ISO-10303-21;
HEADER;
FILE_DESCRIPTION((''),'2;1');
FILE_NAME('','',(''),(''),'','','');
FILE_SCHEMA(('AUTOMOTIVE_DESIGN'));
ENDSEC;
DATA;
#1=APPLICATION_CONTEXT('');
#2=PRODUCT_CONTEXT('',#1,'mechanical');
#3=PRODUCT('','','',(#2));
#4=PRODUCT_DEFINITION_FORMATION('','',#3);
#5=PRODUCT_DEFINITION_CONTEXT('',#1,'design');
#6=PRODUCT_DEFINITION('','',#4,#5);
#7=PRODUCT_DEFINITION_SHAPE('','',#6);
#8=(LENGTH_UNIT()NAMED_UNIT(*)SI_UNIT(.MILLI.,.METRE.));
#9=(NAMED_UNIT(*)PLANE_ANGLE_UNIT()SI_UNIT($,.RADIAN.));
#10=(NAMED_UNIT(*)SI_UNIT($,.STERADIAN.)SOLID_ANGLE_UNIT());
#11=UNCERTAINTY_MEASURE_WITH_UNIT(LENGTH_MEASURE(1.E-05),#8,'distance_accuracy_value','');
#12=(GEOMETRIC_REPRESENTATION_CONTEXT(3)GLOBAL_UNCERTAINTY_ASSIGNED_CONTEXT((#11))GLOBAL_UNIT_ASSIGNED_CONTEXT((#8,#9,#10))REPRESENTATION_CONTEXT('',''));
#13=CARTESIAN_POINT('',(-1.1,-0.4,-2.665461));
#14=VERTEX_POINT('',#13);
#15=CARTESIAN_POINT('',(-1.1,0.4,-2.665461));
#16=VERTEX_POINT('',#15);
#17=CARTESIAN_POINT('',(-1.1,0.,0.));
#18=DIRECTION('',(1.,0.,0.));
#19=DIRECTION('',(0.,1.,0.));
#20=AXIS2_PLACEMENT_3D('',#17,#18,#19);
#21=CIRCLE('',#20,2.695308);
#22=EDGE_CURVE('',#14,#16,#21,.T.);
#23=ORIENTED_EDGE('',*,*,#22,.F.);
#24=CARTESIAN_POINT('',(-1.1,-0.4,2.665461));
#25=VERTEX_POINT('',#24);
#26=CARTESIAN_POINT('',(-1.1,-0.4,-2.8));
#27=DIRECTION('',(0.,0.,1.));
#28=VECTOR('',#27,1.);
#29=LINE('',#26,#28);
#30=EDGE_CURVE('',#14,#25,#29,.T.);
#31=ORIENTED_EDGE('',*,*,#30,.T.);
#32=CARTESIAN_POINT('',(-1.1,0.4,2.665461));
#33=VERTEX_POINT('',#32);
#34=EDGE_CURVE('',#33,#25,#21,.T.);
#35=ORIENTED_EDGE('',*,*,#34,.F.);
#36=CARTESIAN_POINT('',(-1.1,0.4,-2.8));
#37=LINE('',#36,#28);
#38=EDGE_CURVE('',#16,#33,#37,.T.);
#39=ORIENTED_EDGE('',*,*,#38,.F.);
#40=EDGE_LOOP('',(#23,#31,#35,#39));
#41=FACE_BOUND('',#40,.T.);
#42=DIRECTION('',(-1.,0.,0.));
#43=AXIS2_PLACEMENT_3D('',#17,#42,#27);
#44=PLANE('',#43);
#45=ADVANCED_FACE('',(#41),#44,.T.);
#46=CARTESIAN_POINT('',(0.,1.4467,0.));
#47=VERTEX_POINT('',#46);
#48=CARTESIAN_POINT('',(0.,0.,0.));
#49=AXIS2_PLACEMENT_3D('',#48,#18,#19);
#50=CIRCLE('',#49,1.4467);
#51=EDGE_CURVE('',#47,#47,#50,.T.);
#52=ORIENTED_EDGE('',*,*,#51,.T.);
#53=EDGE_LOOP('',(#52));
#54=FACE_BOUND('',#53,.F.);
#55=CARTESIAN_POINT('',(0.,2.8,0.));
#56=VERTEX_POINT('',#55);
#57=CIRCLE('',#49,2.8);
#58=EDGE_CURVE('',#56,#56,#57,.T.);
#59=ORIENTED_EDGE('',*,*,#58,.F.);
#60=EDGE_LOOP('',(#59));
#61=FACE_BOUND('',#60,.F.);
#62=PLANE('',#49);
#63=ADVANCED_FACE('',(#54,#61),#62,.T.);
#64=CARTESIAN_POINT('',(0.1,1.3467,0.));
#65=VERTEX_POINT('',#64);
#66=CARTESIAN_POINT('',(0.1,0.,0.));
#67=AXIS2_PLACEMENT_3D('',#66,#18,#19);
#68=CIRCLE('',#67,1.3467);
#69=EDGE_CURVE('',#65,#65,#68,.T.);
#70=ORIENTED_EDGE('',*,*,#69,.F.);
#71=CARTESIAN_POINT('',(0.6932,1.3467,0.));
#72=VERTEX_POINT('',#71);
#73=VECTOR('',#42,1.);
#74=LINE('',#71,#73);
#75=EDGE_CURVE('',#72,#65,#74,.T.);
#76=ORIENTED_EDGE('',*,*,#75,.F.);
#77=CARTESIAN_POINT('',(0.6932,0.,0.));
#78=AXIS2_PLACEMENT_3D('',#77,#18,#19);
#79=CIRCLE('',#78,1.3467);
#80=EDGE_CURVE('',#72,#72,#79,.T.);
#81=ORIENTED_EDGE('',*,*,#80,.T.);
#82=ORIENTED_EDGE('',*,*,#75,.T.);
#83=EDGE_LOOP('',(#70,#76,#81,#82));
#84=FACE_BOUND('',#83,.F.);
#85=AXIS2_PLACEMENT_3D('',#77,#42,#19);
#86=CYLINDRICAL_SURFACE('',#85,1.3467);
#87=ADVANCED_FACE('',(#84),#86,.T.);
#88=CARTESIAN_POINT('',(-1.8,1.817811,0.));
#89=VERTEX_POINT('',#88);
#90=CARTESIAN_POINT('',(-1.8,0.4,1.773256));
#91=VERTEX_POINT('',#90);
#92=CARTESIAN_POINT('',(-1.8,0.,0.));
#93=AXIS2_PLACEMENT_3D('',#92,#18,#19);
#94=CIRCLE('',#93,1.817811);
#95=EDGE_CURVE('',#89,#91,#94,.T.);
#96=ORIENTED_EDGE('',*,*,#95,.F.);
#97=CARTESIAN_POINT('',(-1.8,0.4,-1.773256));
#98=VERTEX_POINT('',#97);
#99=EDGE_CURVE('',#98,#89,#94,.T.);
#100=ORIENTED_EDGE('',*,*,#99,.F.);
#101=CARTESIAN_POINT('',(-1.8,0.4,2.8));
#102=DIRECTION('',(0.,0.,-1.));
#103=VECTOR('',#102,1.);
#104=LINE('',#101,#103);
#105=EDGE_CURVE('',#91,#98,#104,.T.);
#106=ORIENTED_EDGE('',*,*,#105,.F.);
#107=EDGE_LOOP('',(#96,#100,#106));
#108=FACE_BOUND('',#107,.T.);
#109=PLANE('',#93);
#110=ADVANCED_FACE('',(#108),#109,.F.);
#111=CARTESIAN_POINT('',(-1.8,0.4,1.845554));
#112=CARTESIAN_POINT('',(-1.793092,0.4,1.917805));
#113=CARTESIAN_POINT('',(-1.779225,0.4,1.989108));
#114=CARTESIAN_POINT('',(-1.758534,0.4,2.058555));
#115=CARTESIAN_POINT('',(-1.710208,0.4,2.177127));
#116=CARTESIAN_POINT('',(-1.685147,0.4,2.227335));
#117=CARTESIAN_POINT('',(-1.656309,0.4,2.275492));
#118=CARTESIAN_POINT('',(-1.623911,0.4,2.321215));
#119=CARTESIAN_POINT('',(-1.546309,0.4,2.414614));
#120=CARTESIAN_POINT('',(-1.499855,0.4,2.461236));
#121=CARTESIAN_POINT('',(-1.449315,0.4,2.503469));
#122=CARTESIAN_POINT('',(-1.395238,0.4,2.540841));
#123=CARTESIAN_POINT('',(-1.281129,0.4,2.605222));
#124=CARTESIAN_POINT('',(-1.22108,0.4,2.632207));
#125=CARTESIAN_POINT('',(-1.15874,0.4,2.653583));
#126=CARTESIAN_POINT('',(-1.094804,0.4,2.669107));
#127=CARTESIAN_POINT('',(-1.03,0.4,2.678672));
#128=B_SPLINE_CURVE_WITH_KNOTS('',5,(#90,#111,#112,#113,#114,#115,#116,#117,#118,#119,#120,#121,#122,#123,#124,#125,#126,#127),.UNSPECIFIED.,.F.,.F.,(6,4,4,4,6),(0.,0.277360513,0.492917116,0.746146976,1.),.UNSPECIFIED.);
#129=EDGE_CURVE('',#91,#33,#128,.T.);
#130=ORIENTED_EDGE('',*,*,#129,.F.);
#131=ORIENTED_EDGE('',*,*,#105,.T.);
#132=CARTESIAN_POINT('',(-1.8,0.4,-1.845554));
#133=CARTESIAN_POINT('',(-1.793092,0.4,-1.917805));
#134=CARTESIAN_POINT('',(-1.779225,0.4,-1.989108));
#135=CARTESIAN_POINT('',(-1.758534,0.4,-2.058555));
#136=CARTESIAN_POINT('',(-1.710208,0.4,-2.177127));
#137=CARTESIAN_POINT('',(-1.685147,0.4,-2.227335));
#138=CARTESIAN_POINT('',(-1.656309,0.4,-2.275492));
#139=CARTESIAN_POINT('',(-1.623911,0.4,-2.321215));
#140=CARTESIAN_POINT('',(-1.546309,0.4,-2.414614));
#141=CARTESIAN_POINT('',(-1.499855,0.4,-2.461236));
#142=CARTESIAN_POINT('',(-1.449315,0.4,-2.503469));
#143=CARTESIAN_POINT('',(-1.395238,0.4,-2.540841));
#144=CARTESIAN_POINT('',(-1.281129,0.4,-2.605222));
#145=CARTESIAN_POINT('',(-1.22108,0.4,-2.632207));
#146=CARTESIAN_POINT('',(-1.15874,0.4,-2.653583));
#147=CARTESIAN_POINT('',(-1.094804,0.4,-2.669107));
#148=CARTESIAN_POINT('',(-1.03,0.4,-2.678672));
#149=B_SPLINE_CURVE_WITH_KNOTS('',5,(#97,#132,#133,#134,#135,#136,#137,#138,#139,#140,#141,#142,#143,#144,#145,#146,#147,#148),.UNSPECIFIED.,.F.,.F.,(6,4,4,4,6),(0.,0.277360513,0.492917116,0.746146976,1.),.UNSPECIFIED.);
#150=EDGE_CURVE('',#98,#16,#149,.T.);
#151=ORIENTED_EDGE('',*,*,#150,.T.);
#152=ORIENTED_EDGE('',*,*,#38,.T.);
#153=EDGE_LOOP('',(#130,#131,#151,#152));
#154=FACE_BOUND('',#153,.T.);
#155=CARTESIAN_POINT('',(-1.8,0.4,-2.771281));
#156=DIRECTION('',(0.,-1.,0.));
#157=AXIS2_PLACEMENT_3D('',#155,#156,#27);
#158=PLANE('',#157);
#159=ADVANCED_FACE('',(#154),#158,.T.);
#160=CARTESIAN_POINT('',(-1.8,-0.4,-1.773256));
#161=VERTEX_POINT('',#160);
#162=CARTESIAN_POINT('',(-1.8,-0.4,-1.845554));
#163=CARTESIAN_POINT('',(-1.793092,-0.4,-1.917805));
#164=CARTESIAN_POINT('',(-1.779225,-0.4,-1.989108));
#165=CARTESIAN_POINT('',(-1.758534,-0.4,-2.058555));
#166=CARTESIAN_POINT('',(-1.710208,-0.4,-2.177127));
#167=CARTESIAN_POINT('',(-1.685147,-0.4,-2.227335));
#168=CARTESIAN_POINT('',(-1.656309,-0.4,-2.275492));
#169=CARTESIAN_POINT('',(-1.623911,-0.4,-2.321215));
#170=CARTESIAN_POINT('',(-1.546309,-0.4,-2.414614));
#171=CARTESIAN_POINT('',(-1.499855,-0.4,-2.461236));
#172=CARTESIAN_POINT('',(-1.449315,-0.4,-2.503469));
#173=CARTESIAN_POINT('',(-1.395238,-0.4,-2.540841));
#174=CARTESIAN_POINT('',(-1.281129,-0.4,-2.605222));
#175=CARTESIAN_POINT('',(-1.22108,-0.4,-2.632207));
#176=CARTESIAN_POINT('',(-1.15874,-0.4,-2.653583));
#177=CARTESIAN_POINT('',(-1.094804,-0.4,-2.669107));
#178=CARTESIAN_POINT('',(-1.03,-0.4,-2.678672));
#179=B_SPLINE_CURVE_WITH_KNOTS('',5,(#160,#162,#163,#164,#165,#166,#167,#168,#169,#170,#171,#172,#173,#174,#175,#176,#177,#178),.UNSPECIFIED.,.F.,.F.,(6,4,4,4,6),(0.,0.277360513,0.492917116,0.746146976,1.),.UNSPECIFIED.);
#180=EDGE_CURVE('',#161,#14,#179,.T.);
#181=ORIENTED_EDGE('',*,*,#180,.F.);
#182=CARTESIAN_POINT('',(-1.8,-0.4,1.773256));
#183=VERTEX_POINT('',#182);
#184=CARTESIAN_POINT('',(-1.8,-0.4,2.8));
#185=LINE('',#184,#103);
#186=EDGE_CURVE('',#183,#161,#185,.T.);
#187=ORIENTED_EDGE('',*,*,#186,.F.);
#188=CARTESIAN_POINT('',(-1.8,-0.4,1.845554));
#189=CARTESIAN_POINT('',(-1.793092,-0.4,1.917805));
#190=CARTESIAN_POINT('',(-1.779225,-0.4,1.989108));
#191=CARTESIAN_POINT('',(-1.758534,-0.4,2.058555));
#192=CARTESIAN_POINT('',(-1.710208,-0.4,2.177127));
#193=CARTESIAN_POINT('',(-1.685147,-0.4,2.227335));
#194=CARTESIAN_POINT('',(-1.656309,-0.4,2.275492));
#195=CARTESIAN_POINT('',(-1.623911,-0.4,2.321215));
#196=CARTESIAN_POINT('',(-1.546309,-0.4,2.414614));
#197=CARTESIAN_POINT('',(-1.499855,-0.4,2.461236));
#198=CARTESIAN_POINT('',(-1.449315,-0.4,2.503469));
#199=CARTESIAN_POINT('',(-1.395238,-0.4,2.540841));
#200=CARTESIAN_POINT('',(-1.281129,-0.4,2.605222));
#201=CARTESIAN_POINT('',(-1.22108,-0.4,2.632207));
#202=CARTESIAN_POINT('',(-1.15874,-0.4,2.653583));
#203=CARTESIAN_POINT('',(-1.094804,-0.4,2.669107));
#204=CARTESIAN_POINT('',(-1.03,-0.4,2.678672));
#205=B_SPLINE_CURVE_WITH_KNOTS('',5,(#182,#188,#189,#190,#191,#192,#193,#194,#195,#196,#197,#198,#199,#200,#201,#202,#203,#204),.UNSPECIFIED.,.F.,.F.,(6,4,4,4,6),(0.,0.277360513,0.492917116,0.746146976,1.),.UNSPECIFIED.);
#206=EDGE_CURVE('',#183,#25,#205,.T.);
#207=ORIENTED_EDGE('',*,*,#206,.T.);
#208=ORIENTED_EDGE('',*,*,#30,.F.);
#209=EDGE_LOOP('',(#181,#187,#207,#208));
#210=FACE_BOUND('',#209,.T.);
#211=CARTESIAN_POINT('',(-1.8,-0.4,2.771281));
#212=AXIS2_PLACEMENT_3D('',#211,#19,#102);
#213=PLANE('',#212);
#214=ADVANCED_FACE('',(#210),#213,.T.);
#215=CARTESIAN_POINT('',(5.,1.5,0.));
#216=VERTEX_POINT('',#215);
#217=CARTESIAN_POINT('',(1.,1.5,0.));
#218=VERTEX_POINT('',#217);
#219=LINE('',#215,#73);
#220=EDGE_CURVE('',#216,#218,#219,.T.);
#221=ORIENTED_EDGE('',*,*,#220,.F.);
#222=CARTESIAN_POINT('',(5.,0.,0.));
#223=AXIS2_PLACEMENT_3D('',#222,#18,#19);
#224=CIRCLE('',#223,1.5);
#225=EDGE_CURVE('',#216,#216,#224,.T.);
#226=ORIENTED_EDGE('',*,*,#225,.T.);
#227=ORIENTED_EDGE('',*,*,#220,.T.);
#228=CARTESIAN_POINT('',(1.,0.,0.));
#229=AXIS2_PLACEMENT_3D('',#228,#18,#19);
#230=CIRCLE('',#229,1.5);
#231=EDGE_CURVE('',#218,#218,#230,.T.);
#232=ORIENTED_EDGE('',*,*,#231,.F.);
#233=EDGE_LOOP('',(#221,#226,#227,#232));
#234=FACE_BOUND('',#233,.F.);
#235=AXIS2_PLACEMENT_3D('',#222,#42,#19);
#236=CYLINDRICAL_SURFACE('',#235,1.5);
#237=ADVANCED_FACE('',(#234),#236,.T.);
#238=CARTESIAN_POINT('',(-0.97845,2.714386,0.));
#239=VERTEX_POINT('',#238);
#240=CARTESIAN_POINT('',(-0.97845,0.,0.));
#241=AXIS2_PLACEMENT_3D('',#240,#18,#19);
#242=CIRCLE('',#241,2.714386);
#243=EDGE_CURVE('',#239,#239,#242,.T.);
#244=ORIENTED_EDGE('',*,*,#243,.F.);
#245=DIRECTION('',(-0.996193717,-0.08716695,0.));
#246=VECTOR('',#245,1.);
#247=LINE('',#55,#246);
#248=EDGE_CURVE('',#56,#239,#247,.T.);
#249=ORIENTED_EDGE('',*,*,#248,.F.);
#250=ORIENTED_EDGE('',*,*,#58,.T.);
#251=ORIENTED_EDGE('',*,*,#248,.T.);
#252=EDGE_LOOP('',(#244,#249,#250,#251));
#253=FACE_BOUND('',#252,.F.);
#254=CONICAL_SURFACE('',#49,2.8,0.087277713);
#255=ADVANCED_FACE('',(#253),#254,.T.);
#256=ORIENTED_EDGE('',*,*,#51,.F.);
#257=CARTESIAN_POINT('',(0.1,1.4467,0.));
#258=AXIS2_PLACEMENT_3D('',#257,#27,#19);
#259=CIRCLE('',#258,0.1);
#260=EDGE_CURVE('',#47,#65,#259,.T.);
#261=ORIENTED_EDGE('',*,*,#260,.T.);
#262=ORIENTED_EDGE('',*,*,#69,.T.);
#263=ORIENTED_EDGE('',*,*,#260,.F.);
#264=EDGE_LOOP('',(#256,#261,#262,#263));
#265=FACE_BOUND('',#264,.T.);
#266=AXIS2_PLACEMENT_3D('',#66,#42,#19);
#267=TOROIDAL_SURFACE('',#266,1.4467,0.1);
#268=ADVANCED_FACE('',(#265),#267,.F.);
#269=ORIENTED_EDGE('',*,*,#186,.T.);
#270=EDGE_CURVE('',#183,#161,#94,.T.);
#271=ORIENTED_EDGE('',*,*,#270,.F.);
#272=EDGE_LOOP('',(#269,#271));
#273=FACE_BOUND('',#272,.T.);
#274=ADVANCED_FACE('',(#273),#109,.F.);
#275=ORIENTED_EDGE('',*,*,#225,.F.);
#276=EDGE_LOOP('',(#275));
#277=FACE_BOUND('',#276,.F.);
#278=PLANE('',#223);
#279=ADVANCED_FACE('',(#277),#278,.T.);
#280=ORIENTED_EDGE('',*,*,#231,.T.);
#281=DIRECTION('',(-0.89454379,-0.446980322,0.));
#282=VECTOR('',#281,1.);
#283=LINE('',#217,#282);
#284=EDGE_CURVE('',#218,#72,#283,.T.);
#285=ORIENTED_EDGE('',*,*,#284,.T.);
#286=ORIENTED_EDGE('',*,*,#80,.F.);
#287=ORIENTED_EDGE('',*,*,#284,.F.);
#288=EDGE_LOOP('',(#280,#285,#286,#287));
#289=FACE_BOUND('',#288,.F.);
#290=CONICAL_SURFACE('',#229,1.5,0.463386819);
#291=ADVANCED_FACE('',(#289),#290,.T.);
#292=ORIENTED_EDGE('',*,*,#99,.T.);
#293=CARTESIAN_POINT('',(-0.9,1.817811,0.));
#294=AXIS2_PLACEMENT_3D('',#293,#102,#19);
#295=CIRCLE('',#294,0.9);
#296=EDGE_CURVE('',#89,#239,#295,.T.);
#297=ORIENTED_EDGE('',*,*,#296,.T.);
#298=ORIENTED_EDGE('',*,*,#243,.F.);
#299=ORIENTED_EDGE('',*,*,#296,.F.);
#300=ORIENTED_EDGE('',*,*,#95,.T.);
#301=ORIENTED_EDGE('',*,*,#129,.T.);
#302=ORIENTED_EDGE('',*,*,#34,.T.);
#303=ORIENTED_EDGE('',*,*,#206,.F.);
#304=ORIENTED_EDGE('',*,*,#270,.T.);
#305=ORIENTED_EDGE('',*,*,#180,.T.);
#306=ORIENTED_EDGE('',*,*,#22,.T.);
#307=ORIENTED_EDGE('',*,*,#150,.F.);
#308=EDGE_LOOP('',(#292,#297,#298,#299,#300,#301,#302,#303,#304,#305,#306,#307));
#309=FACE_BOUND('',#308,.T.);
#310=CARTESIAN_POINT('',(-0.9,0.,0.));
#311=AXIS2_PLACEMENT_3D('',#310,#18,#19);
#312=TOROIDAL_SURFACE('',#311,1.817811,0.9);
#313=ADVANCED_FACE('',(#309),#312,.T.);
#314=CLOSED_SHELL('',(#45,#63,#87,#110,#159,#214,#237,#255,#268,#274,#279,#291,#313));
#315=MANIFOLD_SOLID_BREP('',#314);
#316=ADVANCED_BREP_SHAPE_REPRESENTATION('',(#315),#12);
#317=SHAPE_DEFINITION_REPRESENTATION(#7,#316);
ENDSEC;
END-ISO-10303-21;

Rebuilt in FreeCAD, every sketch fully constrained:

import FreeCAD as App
import Part
import Sketcher
from FreeCAD import Vector
Q = App.Units.Quantity


def edges_at(feature, points):
    """Names of the edges that pass closest to the given points."""
    edges = feature.Shape.Edges
    near = lambda p: min(range(len(edges)), key=lambda i: edges[i].distToShape(Part.Vertex(*p))[0])
    return sorted({f"Edge{near(p) + 1}" for p in points})


def add_polygon(sketch, points):
    """Adds a closed chain of lines whose ends are joined by coincident constraints."""
    first, n = sketch.GeometryCount, len(points)
    for a, b in zip(points, points[1:] + points[:1]):
        sketch.addGeometry(Part.LineSegment(App.Vector(*a, 0), App.Vector(*b, 0)), False)
    for i in range(n):
        sketch.addConstraint(Sketcher.Constraint("Coincident", first + i, 2, first + (i + 1) % n, 1))

doc = App.newDocument("Part")
body = doc.addObject("PartDesign::Body", "Body")

# Sketch on XY plane
sketch1 = body.newObject("Sketcher::SketchObject", "Sketch")
sketch1.AttachmentSupport = (doc.getObject("XY_Plane"), [""])
sketch1.MapMode = "FlatFace"
add_polygon(sketch1, [(-1.8, 2.64), (-1.8, 0), (5, 0), (5, 1.5), (1, 1.5), (0.69, 1.35), (0, 1.35), (0, 2.8)])  # lines 0-7
sketch1.addConstraint([
    Sketcher.Constraint("Vertical", 0),
    Sketcher.Constraint("Horizontal", 1),
    Sketcher.Constraint("Vertical", 2),
    Sketcher.Constraint("Horizontal", 3),
    Sketcher.Constraint("Horizontal", 5),
    Sketcher.Constraint("Vertical", 6),
    Sketcher.Constraint("PointOnObject", 0, 2, -1),
    Sketcher.Constraint("PointOnObject", 5, 2, -2),
    Sketcher.Constraint("DistanceX", 3, 2, 3, 1, 4.0),
    Sketcher.Constraint("DistanceX", -1, 1, 1, 2, 5.0),
    Sketcher.Constraint("DistanceX", 0, 2, -1, 1, 1.8),
    Sketcher.Constraint("Angle", 7, Q("-174.9994 deg")),
    Sketcher.Constraint("DistanceY", 2, 1, 2, 2, 1.5),
    Sketcher.Constraint("DistanceY", -1, 1, 6, 2, 2.8),
    Sketcher.Constraint("Angle", 4, Q("-153.45 deg")),
    Sketcher.Constraint("DistanceX", 4, 2, 3, 2, 0.3068),
])
revolution = body.newObject("PartDesign::Revolution", "Revolution")
revolution.Profile = sketch1
revolution.ReferenceAxis = (sketch1, ["H_Axis"])
revolution.Angle = 360
doc.recompute()

fillet = body.newObject("PartDesign::Fillet", "Fillet")
fillet.Base = (revolution, edges_at(revolution, [(-1.8, -2.643, 0)]))
fillet.Radius = 0.9

# Sketch on YZ plane
sketch2 = body.newObject("Sketcher::SketchObject", "Sketch001")
sketch2.AttachmentSupport = (doc.getObject("YZ_Plane"), [""])
sketch2.MapMode = "FlatFace"
sketch2.AttachmentOffset = App.Placement(Vector(0, 0, -1.8), App.Rotation())
add_polygon(sketch2, [(-0.4, 2.8), (0.4, 2.8), (0.4, -2.8), (-0.4, -2.8)])  # lines 0-3
sketch2.addConstraint([
    Sketcher.Constraint("Horizontal", 0),
    Sketcher.Constraint("Vertical", 1),
    Sketcher.Constraint("Horizontal", 2),
    Sketcher.Constraint("Vertical", 3),
    Sketcher.Constraint("Symmetric", 0, 2, 2, 2, -1, 1),
    Sketcher.Constraint("DistanceX", 0, 1, 0, 2, 0.8),
    Sketcher.Constraint("DistanceY", 1, 2, 1, 1, 5.6),
])
pocket1 = body.newObject("PartDesign::Pocket", "Pocket")
pocket1.Profile = sketch2
pocket1.Length = 0.7
pocket1.Reversed = True
doc.recompute()

fillet2 = body.newObject("PartDesign::Fillet", "Fillet001")
fillet2.Base = (pocket1, edges_at(pocket1, [(0, -1.347, 0)]))
fillet2.Radius = 0.1

doc.recompute()
